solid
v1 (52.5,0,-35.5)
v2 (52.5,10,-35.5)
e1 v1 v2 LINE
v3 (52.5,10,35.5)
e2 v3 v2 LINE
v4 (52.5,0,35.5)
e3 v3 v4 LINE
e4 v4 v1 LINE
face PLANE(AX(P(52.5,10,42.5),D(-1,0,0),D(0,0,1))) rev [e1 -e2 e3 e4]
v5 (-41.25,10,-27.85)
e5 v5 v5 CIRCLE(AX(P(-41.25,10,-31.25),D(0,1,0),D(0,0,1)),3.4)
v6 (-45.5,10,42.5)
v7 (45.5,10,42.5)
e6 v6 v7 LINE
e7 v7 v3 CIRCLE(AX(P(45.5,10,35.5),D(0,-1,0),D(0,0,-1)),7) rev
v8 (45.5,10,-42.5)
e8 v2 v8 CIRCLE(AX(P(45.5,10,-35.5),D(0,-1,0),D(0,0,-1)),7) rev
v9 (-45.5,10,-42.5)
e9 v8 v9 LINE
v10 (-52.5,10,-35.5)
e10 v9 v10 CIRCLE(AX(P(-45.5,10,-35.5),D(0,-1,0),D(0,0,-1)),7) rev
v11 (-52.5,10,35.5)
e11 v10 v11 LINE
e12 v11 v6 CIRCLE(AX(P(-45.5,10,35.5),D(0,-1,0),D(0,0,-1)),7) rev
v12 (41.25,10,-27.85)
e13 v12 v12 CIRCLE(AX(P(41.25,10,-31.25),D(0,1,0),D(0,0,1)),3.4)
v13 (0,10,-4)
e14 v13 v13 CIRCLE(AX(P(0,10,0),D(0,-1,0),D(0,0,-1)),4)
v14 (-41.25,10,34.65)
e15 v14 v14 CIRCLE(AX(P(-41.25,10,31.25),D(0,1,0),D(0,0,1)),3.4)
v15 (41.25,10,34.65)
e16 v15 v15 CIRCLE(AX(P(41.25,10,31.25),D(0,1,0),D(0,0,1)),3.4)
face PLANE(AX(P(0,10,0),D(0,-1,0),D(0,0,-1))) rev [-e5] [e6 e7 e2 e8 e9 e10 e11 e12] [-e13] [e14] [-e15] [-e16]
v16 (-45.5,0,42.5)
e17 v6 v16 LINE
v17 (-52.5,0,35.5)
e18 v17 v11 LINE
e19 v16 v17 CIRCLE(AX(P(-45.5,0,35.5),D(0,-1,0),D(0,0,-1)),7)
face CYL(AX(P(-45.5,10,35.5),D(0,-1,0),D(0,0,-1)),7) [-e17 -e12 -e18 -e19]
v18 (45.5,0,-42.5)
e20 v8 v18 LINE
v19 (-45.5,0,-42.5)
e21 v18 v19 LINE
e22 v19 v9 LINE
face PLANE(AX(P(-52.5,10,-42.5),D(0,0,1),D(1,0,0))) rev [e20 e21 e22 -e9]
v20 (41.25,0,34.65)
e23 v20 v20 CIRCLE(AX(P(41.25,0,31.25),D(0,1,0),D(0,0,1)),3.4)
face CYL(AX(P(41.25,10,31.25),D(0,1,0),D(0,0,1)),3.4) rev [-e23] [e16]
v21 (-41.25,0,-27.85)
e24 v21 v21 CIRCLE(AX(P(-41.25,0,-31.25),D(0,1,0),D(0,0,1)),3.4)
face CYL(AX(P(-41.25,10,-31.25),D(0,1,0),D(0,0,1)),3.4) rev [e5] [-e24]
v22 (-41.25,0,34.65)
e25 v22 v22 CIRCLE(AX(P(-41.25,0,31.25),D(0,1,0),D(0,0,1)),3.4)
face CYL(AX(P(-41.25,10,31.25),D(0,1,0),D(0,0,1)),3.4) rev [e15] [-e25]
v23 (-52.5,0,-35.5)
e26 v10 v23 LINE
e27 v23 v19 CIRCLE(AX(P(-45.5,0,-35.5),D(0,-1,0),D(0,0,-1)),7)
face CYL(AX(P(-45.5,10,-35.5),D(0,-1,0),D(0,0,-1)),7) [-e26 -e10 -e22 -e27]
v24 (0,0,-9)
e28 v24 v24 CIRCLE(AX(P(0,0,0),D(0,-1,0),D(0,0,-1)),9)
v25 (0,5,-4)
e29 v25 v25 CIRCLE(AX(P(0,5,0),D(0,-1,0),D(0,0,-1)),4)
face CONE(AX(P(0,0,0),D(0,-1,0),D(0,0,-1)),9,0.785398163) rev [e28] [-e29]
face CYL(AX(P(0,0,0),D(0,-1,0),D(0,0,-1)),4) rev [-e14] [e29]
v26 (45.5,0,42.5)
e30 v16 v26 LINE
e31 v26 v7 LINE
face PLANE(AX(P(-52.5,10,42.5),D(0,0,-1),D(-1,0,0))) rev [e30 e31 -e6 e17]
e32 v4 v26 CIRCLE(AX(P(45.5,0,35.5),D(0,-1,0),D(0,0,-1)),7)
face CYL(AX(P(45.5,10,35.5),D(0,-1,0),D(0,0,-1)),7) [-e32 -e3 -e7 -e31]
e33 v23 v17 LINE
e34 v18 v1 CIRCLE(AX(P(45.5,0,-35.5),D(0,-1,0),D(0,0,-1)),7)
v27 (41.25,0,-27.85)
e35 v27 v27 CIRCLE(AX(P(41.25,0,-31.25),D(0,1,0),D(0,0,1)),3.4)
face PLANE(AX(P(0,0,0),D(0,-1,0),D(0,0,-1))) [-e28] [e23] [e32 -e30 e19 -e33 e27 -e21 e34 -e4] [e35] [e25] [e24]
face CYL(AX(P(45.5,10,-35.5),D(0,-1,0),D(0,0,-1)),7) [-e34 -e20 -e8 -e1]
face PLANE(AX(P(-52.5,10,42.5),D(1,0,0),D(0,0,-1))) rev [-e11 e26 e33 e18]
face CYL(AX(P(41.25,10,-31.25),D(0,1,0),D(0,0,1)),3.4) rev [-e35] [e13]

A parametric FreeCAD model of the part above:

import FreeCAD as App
import Part
import Sketcher

V = App.Vector
Q = App.Units.Quantity


def edges_at(feature, points):
    """Names of the edges that pass closest to the given points."""
    edges = feature.Shape.Edges
    near = lambda p: min(range(len(edges)), key=lambda i: edges[i].distToShape(Part.Vertex(*p))[0])
    return sorted({f"Edge{near(p) + 1}" for p in points})


def add_polygon(sketch, points):
    """Adds a closed chain of lines whose ends are joined by coincident constraints."""
    first, n = sketch.GeometryCount, len(points)
    for a, b in zip(points, points[1:] + points[:1]):
        sketch.addGeometry(Part.LineSegment(App.Vector(*a, 0), App.Vector(*b, 0)), False)
    for i in range(n):
        sketch.addConstraint(Sketcher.Constraint("Coincident", first + i, 2, first + (i + 1) % n, 1))

doc = App.newDocument("Part")
params = doc.addObject("Spreadsheet::Sheet", "Params")
for row, (alias, value) in enumerate([
    ("sketch1_width", "105 mm"),
    ("sketch1_height", "85 mm"),
    ("pad1_length", "10 mm"),
    ("sketch2_diameter", "6.8 mm"),
    ("hole_diameter", "6.8 mm"),
    ("sketch3_diameter", "8 mm"),
    ("hole2_diameter", "8 mm"),
    ("hole2_depth", "10 mm"),
    ("hole2_csink_diameter", "18 mm"),
    ("fillet_radius", "7 mm"),
], start=1):
    params.set(f"A{row}", alias)
    params.set(f"B{row}", "=" + value)
    params.setAlias(f"B{row}", alias)

body = doc.addObject("PartDesign::Body", "Body")

sketch1 = doc.addObject("Sketcher::SketchObject", "Sketch")
body.addObject(sketch1)
sketch1.AttachmentSupport = (doc.XZ_Plane, [""])
sketch1.MapMode = "FlatFace"
add_polygon(sketch1, [(-52, -42), (-52, 42), (52, 42), (52, -42)])
sketch1.addConstraint([
    Sketcher.Constraint("Vertical", 0),
    Sketcher.Constraint("Horizontal", 1),
    Sketcher.Constraint("Vertical", 2),
    Sketcher.Constraint("Horizontal", 3),
    Sketcher.Constraint("Symmetric", 0, 2, 2, 2, -1, 1),
    Sketcher.Constraint("DistanceX", 1, 1, 1, 2, Q("105 mm")),
    Sketcher.Constraint("DistanceY", 0, 1, 0, 2, Q("85 mm")),
])
sketch1.setExpression("Constraints[9]", "Params.sketch1_width")
sketch1.setExpression("Constraints[10]", "Params.sketch1_height")
pad1 = doc.addObject("PartDesign::Pad", "Pad")
body.addObject(pad1)
pad1.Profile = sketch1
pad1.setExpression("Length", "Params.pad1_length")
pad1.Reversed = True

sketch2 = doc.addObject("Sketcher::SketchObject", "Sketch001")
body.addObject(sketch2)
sketch2.AttachmentSupport = (doc.XZ_Plane, [""])
sketch2.MapMode = "FlatFace"
sketch2.AttachmentOffset = App.Placement(V(0, 0, -10), App.Rotation())
sketch2.addGeometry([
    Part.Circle(V(-41.2, -31.2, 0), V(0, 0, 1), 3.4),
    Part.Circle(V(-41.2, 31.2, 0), V(0, 0, 1), 3.4),
    Part.Circle(V(41.2, 31.2, 0), V(0, 0, 1), 3.4),
    Part.Circle(V(41.2, -31.2, 0), V(0, 0, 1), 3.4),
], False)
sketch2.addConstraint([
    Sketcher.Constraint("Equal", 0, 1),
    Sketcher.Constraint("Equal", 1, 2),
    Sketcher.Constraint("Equal", 2, 3),
    Sketcher.Constraint("Symmetric", 0, 3, 2, 3, -1, 1),
    Sketcher.Constraint("Symmetric", 1, 3, 3, 3, -1, 1),
    Sketcher.Constraint("Symmetric", 1, 3, 2, 3, -2),
    Sketcher.Constraint("Diameter", 0, Q("6.8 mm")),
    Sketcher.Constraint("DistanceY", 0, 3, 1, 3, Q("62.5 mm")),
    Sketcher.Constraint("DistanceX", 1, 3, 2, 3, Q("82.5 mm")),
])
sketch2.setExpression("Constraints[6]", "Params.sketch2_diameter")
doc.recompute()
hole = doc.addObject("PartDesign::Hole", "Hole")
body.addObject(hole)
hole.Profile = sketch2
hole.ThreadType = "None"
hole.setExpression("Diameter", "Params.hole_diameter")
hole.DepthType = "ThroughAll"
hole.Reversed = True

sketch3 = doc.addObject("Sketcher::SketchObject", "Sketch002")
body.addObject(sketch3)
sketch3.AttachmentSupport = (doc.XZ_Plane, [""])
sketch3.MapMode = "FlatFace"
sketch3.addGeometry(Part.Circle(V(0, 0, 0), V(0, 0, 1), 4), False)
sketch3.addConstraint([
    Sketcher.Constraint("Coincident", 0, 3, -1, 1),
    Sketcher.Constraint("Diameter", 0, Q("8 mm")),
])
sketch3.setExpression("Constraints[1]", "Params.sketch3_diameter")
doc.recompute()
hole2 = doc.addObject("PartDesign::Hole", "Hole001")
body.addObject(hole2)
hole2.Profile = sketch3
hole2.ThreadType = "None"
hole2.setExpression("Diameter", "Params.hole2_diameter")
hole2.DepthType = "Dimension"
hole2.setExpression("Depth", "Params.hole2_depth")
hole2.DrillPoint = "Angled"
hole2.DrillPointAngle = 118
hole2.HoleCutType = "Countersink"
hole2.setExpression("HoleCutDiameter", "Params.hole2_csink_diameter")
hole2.HoleCutCountersinkAngle = 90
doc.recompute()

fillet = doc.addObject("PartDesign::Fillet", "Fillet")
body.addObject(fillet)
fillet.Base = (hole2, edges_at(hole2, [
    (52.5, 5, 42.5),
    (-52.5, 5, 42.5),
    (-52.5, 5, -42.5),
    (52.5, 5, -42.5),
]))
fillet.setExpression("Radius", "Params.fillet_radius")

doc.recompute()
